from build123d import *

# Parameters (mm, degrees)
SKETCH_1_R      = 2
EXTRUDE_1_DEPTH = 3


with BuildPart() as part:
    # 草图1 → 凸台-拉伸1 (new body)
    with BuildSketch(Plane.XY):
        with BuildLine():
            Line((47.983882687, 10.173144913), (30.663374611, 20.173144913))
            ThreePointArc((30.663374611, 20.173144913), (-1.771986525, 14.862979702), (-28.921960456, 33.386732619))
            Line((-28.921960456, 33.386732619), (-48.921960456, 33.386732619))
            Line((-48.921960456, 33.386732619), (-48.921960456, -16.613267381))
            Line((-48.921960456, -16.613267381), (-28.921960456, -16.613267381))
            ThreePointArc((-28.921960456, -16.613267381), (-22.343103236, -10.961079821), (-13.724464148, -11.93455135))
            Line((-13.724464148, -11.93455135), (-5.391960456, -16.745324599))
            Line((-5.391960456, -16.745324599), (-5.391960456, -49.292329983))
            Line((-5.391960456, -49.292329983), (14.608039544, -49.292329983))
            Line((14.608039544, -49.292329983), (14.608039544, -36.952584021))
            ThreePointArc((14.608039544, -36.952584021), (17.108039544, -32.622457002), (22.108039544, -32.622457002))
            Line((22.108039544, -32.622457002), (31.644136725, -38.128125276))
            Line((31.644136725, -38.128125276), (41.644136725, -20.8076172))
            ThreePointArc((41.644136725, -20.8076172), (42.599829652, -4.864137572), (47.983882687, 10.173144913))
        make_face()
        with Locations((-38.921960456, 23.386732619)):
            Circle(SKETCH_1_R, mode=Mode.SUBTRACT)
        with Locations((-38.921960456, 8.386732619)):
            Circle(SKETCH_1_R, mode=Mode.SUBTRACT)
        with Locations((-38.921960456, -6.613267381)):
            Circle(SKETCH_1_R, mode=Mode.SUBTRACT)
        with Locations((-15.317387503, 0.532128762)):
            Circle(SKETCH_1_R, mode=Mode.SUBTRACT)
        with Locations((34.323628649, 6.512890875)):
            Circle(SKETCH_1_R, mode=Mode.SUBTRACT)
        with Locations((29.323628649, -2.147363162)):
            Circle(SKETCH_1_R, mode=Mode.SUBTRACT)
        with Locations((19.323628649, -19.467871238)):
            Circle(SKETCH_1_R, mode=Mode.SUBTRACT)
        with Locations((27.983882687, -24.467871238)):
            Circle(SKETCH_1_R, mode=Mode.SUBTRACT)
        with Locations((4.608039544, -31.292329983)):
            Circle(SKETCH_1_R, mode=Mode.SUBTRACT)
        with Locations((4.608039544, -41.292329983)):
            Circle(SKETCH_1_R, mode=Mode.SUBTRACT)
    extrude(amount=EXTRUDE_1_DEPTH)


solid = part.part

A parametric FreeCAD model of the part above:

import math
import FreeCAD as App
import Part
import Sketcher

V = App.Vector
Q = App.Units.Quantity

doc = App.newDocument("Part")
body = doc.addObject("PartDesign::Body", "Body")

sketch1 = doc.addObject("Sketcher::SketchObject", "Sketch")
body.addObject(sketch1)
sketch1.AttachmentSupport = (doc.XY_Plane, [""])
sketch1.MapMode = "FlatFace"
sketch1.addGeometry([
    Part.LineSegment(V(48, 10.2, 0), V(30.7, 20.2, 0)),
    Part.ArcOfCircle(Part.Circle(V(7.8, 58.1, 0), V(0, 0, 1), 44.2), math.radians(-146), math.radians(-59)),
    Part.LineSegment(V(-28.9, 33.4, 0), V(-48.9, 33.4, 0)),
    Part.LineSegment(V(-48.9, 33.4, 0), V(-48.9, -16.6, 0)),
    Part.LineSegment(V(-48.9, -16.6, 0), V(-28.9, -16.6, 0)),
    Part.ArcOfCircle(Part.Circle(V(-19.2, -21.3, 0), V(0, 0, 1), 10.9), math.radians(60), math.radians(154)),
    Part.LineSegment(V(-13.7, -11.9, 0), V(-5.4, -16.7, 0)),
    Part.LineSegment(V(-5.4, -16.7, 0), V(-5.4, -49.3, 0)),
    Part.LineSegment(V(-5.4, -49.3, 0), V(14.6, -49.3, 0)),
    Part.LineSegment(V(14.6, -49.3, 0), V(14.6, -37, 0)),
    Part.ArcOfCircle(Part.Circle(V(19.6, -37, 0), V(0, 0, 1), 5), math.radians(60), math.radians(180)),
    Part.LineSegment(V(22.1, -32.6, 0), V(31.6, -38.1, 0)),
    Part.LineSegment(V(31.6, -38.1, 0), V(41.6, -20.8, 0)),
    Part.ArcOfCircle(Part.Circle(V(97.9, -16.2, 0), V(0, 0, 1), 56.4), math.radians(152), math.radians(185)),
    Part.Circle(V(4.6, -41.3, 0), V(0, 0, 1), 2),
    Part.Circle(V(4.6, -31.3, 0), V(0, 0, 1), 2),
    Part.Circle(V(19.3, -19.5, 0), V(0, 0, 1), 2),
    Part.Circle(V(28, -24.5, 0), V(0, 0, 1), 2),
    Part.Circle(V(-38.9, -6.6, 0), V(0, 0, 1), 2),
    Part.Circle(V(-15.3, 0.5, 0), V(0, 0, 1), 2),
    Part.Circle(V(-38.9, 8.4, 0), V(0, 0, 1), 2),
    Part.Circle(V(-38.9, 23.4, 0), V(0, 0, 1), 2),
    Part.Circle(V(29.3, -2.1, 0), V(0, 0, 1), 2),
    Part.Circle(V(34.3, 6.5, 0), V(0, 0, 1), 2),
], False)
sketch1.addConstraint([
    Sketcher.Constraint("Coincident", 0, 2, 1, 2),
    Sketcher.Constraint("Coincident", 1, 1, 2, 1),
    Sketcher.Constraint("Coincident", 2, 2, 3, 1),
    Sketcher.Constraint("Coincident", 3, 2, 4, 1),
    Sketcher.Constraint("Coincident", 4, 2, 5, 2),
    Sketcher.Constraint("Tangent", 5, 1, 6, 1),
    Sketcher.Constraint("Coincident", 6, 2, 7, 1),
    Sketcher.Constraint("Coincident", 7, 2, 8, 1),
    Sketcher.Constraint("Coincident", 8, 2, 9, 1),
    Sketcher.Constraint("Tangent", 9, 2, 10, 2),
    Sketcher.Constraint("Tangent", 10, 1, 11, 1),
    Sketcher.Constraint("Coincident", 11, 2, 12, 1),
    Sketcher.Constraint("Coincident", 12, 2, 13, 2),
    Sketcher.Constraint("Coincident", 13, 1, 0, 1),
    Sketcher.Constraint("Horizontal", 2),
    Sketcher.Constraint("Vertical", 3),
    Sketcher.Constraint("Horizontal", 4),
    Sketcher.Constraint("Vertical", 7),
    Sketcher.Constraint("Horizontal", 8),
    Sketcher.Constraint("Vertical", 9),
    Sketcher.Constraint("Equal", 14, 15),
    Sketcher.Constraint("Equal", 15, 16),
    Sketcher.Constraint("Equal", 16, 17),
    Sketcher.Constraint("Equal", 17, 18),
    Sketcher.Constraint("Equal", 18, 19),
    Sketcher.Constraint("Equal", 19, 20),
    Sketcher.Constraint("Equal", 20, 21),
    Sketcher.Constraint("Equal", 21, 22),
    Sketcher.Constraint("Equal", 22, 23),
    Sketcher.Constraint("Parallel", 0, 6),
    Sketcher.Constraint("Parallel", 6, 11),
    Sketcher.Constraint("Perpendicular", 11, 12),
    Sketcher.Constraint("Vertical", 14, 3, 15, 3),
    Sketcher.Constraint("Vertical", 18, 3, 20, 3),
    Sketcher.Constraint("Vertical", 20, 3, 21, 3),
    Sketcher.Constraint("Vertical", 1, 1, 4, 2),
    Sketcher.Constraint("Equal", 4, 8),
    Sketcher.Constraint("Equal", 0, 12),
    Sketcher.Constraint("Diameter", 14, Q("4 mm")),
    Sketcher.Constraint("Radius", 10, Q("5 mm")),
    Sketcher.Constraint("DistanceX", 2, 2, 2, 1, Q("20 mm")),
    Sketcher.Constraint("DistanceY", 3, 2, 3, 1, Q("50 mm")),
    Sketcher.Constraint("Angle", 0, Q("150 deg")),
    Sketcher.Constraint("Distance", 0, Q("20 mm")),
    Sketcher.Constraint("DistanceX", 14, 3, 10, 3, Q("15 mm")),
    Sketcher.Constraint("DistanceY", 14, 3, 15, 3, Q("10 mm")),
    Sketcher.Constraint("DistanceY", 17, 3, 16, 3, Q("5 mm")),
    Sketcher.Constraint("DistanceY", 16, 3, 19, 3, Q("20 mm")),
    Sketcher.Constraint("DistanceY", 18, 3, 20, 3, Q("15 mm")),
    Sketcher.Constraint("DistanceY", 20, 3, 21, 3, Q("15 mm")),
    Sketcher.Constraint("DistanceX", 16, 3, 22, 3, Q("10 mm")),
    Sketcher.Constraint("DistanceX", 22, 3, 23, 3, Q("5 mm")),
    Sketcher.Constraint("DistanceX", 21, 3, 1, 1, Q("10 mm")),
    Sketcher.Constraint("DistanceY", 21, 3, 1, 1, Q("10 mm")),
    Sketcher.Constraint("DistanceY", 7, 2, 14, 3, Q("8 mm")),
    Sketcher.Constraint("DistanceX", 17, 3, 13, 1, Q("20 mm")),
    Sketcher.Constraint("Radius", 1, Q("44.24912 mm")),
    Sketcher.Constraint("DistanceX", 18, 3, 15, 3, Q("43.53 mm")),
    Sketcher.Constraint("Radius", 5, Q("10.851523 mm")),
    Sketcher.Constraint("Radius", 13, Q("56.438188 mm")),
    Sketcher.Constraint("DistanceX", 1, 3, 16, 3, Q("11.515701 mm")),
    Sketcher.Constraint("DistanceY", 21, 3, 1, 3, Q("34.675898 mm")),
    Sketcher.Constraint("DistanceY", 7, 2, 7, 1, Q("32.547005 mm")),
    Sketcher.Constraint("DistanceY", 9, 1, 9, 2, Q("12.339746 mm")),
    Sketcher.Constraint("DistanceY", -1, 1, 1, 3, Q("58.062631 mm")),
    Sketcher.Constraint("DistanceX", -1, 1, 10, 3, Q("19.60804 mm")),
    Sketcher.Constraint("DistanceY", 14, 3, -1, 1, Q("41.29233 mm")),
    Sketcher.Constraint("DistanceY", 16, 3, -1, 1, Q("19.467871 mm")),
    Sketcher.Constraint("DistanceY", -1, 1, 23, 3, Q("6.512891 mm")),
    Sketcher.Constraint("DistanceX", 5, 3, 13, 3, Q("117.042419 mm")),
    Sketcher.Constraint("DistanceY", 5, 3, 13, 3, Q("5.15336 mm")),
    Sketcher.Constraint("DistanceX", 5, 3, 19, 3, Q("3.832838 mm")),
    Sketcher.Constraint("DistanceY", 16, 3, 22, 3, Q("17.320508 mm")),
])
pad1 = doc.addObject("PartDesign::Pad", "Pad")
body.addObject(pad1)
pad1.Profile = sketch1
pad1.Length = 3

doc.recompute()
